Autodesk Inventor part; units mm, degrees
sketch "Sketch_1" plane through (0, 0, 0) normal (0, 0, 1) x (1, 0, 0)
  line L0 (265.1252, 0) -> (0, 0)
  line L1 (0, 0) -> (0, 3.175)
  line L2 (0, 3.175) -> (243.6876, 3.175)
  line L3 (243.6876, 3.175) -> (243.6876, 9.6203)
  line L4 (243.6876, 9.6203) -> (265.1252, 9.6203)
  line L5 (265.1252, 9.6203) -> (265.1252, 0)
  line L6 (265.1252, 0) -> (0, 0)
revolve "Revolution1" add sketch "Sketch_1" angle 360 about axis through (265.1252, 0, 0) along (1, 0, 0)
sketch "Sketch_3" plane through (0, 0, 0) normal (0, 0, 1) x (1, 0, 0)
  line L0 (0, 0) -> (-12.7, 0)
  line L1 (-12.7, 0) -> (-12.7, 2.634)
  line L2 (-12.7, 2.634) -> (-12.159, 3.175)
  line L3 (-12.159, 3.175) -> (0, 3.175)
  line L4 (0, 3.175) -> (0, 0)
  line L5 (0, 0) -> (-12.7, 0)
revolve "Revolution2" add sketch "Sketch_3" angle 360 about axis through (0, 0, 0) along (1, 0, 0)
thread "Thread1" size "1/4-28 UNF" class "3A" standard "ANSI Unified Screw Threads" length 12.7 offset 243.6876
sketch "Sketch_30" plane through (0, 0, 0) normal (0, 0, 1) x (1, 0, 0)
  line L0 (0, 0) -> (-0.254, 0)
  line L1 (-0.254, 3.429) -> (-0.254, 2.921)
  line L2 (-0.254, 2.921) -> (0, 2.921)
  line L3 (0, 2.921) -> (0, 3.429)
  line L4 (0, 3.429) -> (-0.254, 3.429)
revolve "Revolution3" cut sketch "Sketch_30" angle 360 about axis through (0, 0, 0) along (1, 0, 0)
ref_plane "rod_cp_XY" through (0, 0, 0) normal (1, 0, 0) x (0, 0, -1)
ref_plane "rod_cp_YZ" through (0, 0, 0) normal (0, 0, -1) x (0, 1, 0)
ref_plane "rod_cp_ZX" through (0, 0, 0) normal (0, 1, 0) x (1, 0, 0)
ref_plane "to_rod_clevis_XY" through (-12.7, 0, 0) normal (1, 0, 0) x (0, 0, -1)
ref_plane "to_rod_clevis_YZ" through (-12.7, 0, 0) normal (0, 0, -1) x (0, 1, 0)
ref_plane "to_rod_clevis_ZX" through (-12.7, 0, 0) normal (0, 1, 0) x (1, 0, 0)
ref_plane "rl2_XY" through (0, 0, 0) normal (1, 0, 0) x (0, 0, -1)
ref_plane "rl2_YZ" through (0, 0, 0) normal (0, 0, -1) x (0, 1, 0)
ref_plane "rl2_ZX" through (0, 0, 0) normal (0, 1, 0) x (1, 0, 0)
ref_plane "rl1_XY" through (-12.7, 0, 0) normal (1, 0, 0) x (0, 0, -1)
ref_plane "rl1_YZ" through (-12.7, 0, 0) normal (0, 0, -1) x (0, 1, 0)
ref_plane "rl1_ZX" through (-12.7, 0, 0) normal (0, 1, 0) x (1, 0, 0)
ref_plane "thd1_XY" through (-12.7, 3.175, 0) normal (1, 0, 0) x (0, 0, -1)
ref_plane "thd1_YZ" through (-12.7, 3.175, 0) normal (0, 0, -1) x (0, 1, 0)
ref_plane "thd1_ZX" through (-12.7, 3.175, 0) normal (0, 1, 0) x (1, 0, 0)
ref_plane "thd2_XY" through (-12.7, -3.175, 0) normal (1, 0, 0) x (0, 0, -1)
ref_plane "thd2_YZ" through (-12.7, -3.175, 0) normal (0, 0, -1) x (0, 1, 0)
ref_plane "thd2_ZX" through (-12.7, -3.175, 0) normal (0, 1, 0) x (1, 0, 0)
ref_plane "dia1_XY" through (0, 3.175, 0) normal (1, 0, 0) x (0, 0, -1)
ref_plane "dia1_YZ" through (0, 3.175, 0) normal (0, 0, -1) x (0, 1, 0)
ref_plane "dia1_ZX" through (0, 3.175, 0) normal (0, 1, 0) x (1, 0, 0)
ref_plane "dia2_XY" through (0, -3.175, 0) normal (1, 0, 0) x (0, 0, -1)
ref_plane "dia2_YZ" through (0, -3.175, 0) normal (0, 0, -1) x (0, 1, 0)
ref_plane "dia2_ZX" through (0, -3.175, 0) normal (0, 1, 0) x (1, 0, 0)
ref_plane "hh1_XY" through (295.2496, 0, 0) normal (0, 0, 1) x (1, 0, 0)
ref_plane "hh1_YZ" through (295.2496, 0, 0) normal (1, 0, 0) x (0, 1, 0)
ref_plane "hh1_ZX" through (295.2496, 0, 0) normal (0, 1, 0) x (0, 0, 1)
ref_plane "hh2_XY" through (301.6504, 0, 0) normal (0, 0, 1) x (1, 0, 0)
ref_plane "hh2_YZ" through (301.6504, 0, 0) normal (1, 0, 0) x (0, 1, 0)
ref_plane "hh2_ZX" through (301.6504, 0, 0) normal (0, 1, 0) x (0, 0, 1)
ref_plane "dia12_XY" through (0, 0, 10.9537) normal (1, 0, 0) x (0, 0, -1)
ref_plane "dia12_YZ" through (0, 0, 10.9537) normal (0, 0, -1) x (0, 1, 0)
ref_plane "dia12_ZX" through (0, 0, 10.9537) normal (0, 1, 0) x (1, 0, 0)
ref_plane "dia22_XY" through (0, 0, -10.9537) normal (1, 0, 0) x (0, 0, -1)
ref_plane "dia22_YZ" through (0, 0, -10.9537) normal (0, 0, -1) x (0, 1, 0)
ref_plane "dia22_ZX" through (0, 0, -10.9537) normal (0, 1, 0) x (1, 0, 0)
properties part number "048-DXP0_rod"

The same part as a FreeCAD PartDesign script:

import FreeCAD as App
import Part
import Sketcher
Q = App.Units.Quantity


def add_polygon(sketch, points):
    """Adds a closed chain of lines whose ends are joined by coincident constraints."""
    first, n = sketch.GeometryCount, len(points)
    for a, b in zip(points, points[1:] + points[:1]):
        sketch.addGeometry(Part.LineSegment(App.Vector(*a, 0), App.Vector(*b, 0)), False)
    for i in range(n):
        sketch.addConstraint(Sketcher.Constraint("Coincident", first + i, 2, first + (i + 1) % n, 1))

doc = App.newDocument("Part")
body = doc.addObject("PartDesign::Body", "Body")

sketch1 = body.newObject("Sketcher::SketchObject", "Sketch")
sketch1.AttachmentSupport = (doc.getObject("XY_Plane"), [""])
sketch1.MapMode = "FlatFace"
add_polygon(sketch1, [(0, 0), (265.1, 0), (265.1, 9.6), (243.7, 9.6), (243.7, 3.2), (0, 3.2)])
sketch1.addConstraint([
    Sketcher.Constraint("Horizontal", 0),
    Sketcher.Constraint("Vertical", 1),
    Sketcher.Constraint("Horizontal", 2),
    Sketcher.Constraint("Vertical", 3),
    Sketcher.Constraint("Horizontal", 4),
    Sketcher.Constraint("Vertical", 5),
    Sketcher.Constraint("Coincident", 5, 2, -1, 1),
    Sketcher.Constraint("DistanceX", 0, 1, 0, 2, Q("10.438 in")),
    Sketcher.Constraint("DistanceX", 2, 2, 2, 1, Q("0.844 in")),
    Sketcher.Constraint("DistanceY", 5, 2, 5, 1, Q("0.125 in")),
    Sketcher.Constraint("DistanceY", 1, 1, 1, 2, Q("9.6203 mm")),
])
revolution = body.newObject("PartDesign::Revolution", "Revolution")
revolution.Profile = sketch1
revolution.ReferenceAxis = (sketch1, ["H_Axis"])
revolution.Angle = 360

sketch2 = body.newObject("Sketcher::SketchObject", "Sketch001")
sketch2.AttachmentSupport = (doc.getObject("XY_Plane"), [""])
sketch2.MapMode = "FlatFace"
add_polygon(sketch2, [(-12.7, 0), (0, 0), (0, 3.2), (-12.2, 3.2), (-12.7, 2.6)])
sketch2.addConstraint([
    Sketcher.Constraint("Horizontal", 0),
    Sketcher.Constraint("Vertical", 1),
    Sketcher.Constraint("Horizontal", 2),
    Sketcher.Constraint("Vertical", 4),
    Sketcher.Constraint("Coincident", 0, 2, -1, 1),
    Sketcher.Constraint("DistanceX", 0, 1, 0, 2, Q("0.5 in")),
    Sketcher.Constraint("Angle", 3, Q("-135 deg")),
    Sketcher.Constraint("DistanceY", 1, 1, 1, 2, Q("0.125 in")),
    Sketcher.Constraint("DistanceX", 2, 2, 2, 1, Q("0.4787 in")),
])
revolution2 = body.newObject("PartDesign::Revolution", "Revolution001")
revolution2.Profile = sketch2
revolution2.ReferenceAxis = (sketch2, ["H_Axis"])
revolution2.Angle = 360

sketch3 = body.newObject("Sketcher::SketchObject", "Sketch002")
sketch3.AttachmentSupport = (doc.getObject("XY_Plane"), [""])
sketch3.MapMode = "FlatFace"
add_polygon(sketch3, [(0, 3.43), (-0.25, 3.43), (-0.25, 2.92), (0, 2.92)])
sketch3.addConstraint([
    Sketcher.Constraint("Horizontal", 0),
    Sketcher.Constraint("Vertical", 1),
    Sketcher.Constraint("Horizontal", 2),
    Sketcher.Constraint("Vertical", 3),
    Sketcher.Constraint("PointOnObject", 2, 2, -2),
    Sketcher.Constraint("DistanceX", 0, 2, 0, 1, Q("0.01 in")),
    Sketcher.Constraint("DistanceY", 1, 2, 1, 1, Q("0.02 in")),
    Sketcher.Constraint("DistanceY", -1, 1, 0, 2, Q("0.135 in")),
])
groove = body.newObject("PartDesign::Groove", "Groove")
groove.Profile = sketch3
groove.ReferenceAxis = (sketch3, ["H_Axis"])
groove.Angle = 360

doc.recompute()
